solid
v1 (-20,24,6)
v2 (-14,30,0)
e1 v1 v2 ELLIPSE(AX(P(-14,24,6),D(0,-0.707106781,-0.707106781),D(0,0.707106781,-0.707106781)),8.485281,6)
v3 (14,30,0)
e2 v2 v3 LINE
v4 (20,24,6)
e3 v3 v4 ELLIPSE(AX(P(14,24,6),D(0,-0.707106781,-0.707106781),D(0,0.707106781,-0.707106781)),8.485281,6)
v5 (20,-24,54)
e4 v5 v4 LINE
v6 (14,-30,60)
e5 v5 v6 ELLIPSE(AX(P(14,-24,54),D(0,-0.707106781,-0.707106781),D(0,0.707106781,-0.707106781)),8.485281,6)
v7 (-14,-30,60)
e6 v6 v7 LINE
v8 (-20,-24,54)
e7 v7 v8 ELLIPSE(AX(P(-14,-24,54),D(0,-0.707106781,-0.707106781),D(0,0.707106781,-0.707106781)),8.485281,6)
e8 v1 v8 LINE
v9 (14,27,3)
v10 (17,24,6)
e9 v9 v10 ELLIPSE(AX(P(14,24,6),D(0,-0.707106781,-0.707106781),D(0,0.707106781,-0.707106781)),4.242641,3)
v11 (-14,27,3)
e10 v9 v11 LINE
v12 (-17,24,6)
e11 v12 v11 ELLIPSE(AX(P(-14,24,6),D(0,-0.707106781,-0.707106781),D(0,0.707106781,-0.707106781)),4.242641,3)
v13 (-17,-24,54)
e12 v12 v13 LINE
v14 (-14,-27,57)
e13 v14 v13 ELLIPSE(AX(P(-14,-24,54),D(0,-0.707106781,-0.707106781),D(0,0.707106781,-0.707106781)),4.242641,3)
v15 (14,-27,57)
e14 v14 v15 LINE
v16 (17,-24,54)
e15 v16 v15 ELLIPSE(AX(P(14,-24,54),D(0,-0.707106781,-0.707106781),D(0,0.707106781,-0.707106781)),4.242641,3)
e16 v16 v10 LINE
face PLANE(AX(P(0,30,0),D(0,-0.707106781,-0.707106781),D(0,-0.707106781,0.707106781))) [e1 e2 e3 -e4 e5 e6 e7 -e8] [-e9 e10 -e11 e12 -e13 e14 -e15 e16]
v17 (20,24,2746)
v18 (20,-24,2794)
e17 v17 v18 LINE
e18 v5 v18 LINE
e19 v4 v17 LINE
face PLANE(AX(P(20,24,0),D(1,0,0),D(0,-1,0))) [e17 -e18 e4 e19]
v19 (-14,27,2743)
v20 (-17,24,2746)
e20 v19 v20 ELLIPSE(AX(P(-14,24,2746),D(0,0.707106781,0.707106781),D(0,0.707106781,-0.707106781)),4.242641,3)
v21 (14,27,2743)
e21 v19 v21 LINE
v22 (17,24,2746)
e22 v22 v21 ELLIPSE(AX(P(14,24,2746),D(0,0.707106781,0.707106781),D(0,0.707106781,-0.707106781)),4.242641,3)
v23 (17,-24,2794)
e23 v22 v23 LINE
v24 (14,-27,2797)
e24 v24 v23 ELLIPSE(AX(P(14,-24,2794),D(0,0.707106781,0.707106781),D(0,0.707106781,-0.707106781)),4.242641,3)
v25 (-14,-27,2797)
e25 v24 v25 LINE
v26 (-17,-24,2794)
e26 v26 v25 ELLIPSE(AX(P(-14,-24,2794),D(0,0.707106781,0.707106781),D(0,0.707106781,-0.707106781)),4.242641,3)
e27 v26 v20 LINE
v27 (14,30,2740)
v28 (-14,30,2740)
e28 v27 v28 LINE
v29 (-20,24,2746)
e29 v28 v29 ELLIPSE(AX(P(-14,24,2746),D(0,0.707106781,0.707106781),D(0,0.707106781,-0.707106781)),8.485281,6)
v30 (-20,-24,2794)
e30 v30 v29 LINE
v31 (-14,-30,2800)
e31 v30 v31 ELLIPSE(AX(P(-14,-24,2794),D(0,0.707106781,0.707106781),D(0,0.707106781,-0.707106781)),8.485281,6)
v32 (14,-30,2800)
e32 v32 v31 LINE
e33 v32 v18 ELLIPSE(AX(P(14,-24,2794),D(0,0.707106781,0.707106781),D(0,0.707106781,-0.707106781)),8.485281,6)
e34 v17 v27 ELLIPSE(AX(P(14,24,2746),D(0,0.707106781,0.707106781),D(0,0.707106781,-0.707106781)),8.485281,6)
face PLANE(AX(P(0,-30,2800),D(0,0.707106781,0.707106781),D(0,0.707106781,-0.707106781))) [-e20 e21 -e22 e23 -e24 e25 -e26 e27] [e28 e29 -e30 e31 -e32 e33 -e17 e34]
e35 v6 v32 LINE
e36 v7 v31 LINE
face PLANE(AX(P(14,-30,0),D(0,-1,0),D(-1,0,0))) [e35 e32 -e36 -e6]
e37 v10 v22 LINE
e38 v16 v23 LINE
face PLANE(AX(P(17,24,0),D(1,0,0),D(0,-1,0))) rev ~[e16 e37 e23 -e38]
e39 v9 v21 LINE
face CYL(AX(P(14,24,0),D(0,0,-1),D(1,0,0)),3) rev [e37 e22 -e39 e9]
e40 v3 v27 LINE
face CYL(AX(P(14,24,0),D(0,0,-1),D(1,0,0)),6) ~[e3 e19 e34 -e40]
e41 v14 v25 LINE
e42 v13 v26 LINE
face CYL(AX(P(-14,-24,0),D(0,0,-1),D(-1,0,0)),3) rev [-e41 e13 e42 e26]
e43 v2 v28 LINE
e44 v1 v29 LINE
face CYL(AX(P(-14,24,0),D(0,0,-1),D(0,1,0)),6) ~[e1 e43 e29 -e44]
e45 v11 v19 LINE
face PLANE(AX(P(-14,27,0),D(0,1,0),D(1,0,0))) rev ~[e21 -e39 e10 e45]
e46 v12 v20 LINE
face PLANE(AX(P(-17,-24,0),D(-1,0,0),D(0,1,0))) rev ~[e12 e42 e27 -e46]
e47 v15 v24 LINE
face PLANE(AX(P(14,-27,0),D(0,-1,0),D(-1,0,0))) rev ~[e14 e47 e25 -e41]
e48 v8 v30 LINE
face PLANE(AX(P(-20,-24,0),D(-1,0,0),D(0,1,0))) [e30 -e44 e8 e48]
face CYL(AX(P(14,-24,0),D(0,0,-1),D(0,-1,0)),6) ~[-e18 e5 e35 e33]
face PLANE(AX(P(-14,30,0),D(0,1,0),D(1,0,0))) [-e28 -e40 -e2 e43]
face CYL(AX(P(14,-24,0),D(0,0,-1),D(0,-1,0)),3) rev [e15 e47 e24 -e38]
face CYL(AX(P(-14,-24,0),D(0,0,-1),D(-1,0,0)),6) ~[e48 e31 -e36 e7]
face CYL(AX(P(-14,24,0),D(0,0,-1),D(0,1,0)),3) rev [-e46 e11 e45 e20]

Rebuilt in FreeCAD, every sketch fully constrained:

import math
import FreeCAD as App
import Part
import Sketcher
from FreeCAD import Vector
Q = App.Units.Quantity

doc = App.newDocument("Part")
body = doc.addObject("PartDesign::Body", "Body")

# Sketch on XY plane
sketch1 = doc.addObject("Sketcher::SketchObject", "Sketch")
body.addObject(sketch1)
sketch1.AttachmentSupport = (doc.XY_Plane, [""])
sketch1.MapMode = "FlatFace"
sketch1.addGeometry(Part.LineSegment(Vector(-20, 24, 0), Vector(-20, -24, 0)), False)
sketch1.addGeometry(Part.ArcOfCircle(Part.Circle(Vector(-14, -24, 0), Vector(0, 0, 1), 6), math.radians(180), math.radians(270)), False)
sketch1.addGeometry(Part.LineSegment(Vector(-14, -30, 0), Vector(14, -30, 0)), False)
sketch1.addGeometry(Part.ArcOfCircle(Part.Circle(Vector(14, -24, 0), Vector(0, 0, 1), 6), math.radians(-90), math.radians(0)), False)
sketch1.addGeometry(Part.LineSegment(Vector(20, -24, 0), Vector(20, 24, 0)), False)
sketch1.addGeometry(Part.ArcOfCircle(Part.Circle(Vector(14, 24, 0), Vector(0, 0, 1), 6), math.radians(0), math.radians(90)), False)
sketch1.addGeometry(Part.LineSegment(Vector(14, 30, 0), Vector(-14, 30, 0)), False)
sketch1.addGeometry(Part.ArcOfCircle(Part.Circle(Vector(-14, 24, 0), Vector(0, 0, 1), 6), math.radians(90), math.radians(180)), False)
sketch1.addGeometry(Part.ArcOfCircle(Part.Circle(Vector(-14, 24, 0), Vector(0, 0, 1), 3), math.radians(90), math.radians(180)), False)
sketch1.addGeometry(Part.LineSegment(Vector(-14, 27, 0), Vector(14, 27, 0)), False)
sketch1.addGeometry(Part.ArcOfCircle(Part.Circle(Vector(14, 24, 0), Vector(0, 0, 1), 3), math.radians(0), math.radians(90)), False)
sketch1.addGeometry(Part.LineSegment(Vector(17, 24, 0), Vector(17, -24, 0)), False)
sketch1.addGeometry(Part.ArcOfCircle(Part.Circle(Vector(14, -24, 0), Vector(0, 0, 1), 3), math.radians(-90), math.radians(0)), False)
sketch1.addGeometry(Part.LineSegment(Vector(14, -27, 0), Vector(-14, -27, 0)), False)
sketch1.addGeometry(Part.ArcOfCircle(Part.Circle(Vector(-14, -24, 0), Vector(0, 0, 1), 3), math.radians(180), math.radians(270)), False)
sketch1.addGeometry(Part.LineSegment(Vector(-17, -24, 0), Vector(-17, 24, 0)), False)
sketch1.addConstraint(Sketcher.Constraint("Tangent", 0, 2, 1, 1))
sketch1.addConstraint(Sketcher.Constraint("Tangent", 1, 2, 2, 1))
sketch1.addConstraint(Sketcher.Constraint("Tangent", 2, 2, 3, 1))
sketch1.addConstraint(Sketcher.Constraint("Tangent", 3, 2, 4, 1))
sketch1.addConstraint(Sketcher.Constraint("Tangent", 4, 2, 5, 1))
sketch1.addConstraint(Sketcher.Constraint("Tangent", 5, 2, 6, 1))
sketch1.addConstraint(Sketcher.Constraint("Tangent", 6, 2, 7, 1))
sketch1.addConstraint(Sketcher.Constraint("Tangent", 7, 2, 0, 1))
sketch1.addConstraint(Sketcher.Constraint("Tangent", 8, 1, 9, 1))
sketch1.addConstraint(Sketcher.Constraint("Tangent", 9, 2, 10, 2))
sketch1.addConstraint(Sketcher.Constraint("Tangent", 10, 1, 11, 1))
sketch1.addConstraint(Sketcher.Constraint("Tangent", 11, 2, 12, 2))
sketch1.addConstraint(Sketcher.Constraint("Tangent", 12, 1, 13, 1))
sketch1.addConstraint(Sketcher.Constraint("Tangent", 13, 2, 14, 2))
sketch1.addConstraint(Sketcher.Constraint("Tangent", 14, 1, 15, 1))
sketch1.addConstraint(Sketcher.Constraint("Tangent", 15, 2, 8, 2))
sketch1.addConstraint(Sketcher.Constraint("Vertical", 0))
sketch1.addConstraint(Sketcher.Constraint("Horizontal", 2))
sketch1.addConstraint(Sketcher.Constraint("Vertical", 4))
sketch1.addConstraint(Sketcher.Constraint("Horizontal", 6))
sketch1.addConstraint(Sketcher.Constraint("Horizontal", 9))
sketch1.addConstraint(Sketcher.Constraint("Vertical", 11))
sketch1.addConstraint(Sketcher.Constraint("Horizontal", 13))
sketch1.addConstraint(Sketcher.Constraint("Vertical", 15))
sketch1.addConstraint(Sketcher.Constraint("Coincident", 8, 3, 7, 3))
sketch1.addConstraint(Sketcher.Constraint("Coincident", 10, 3, 5, 3))
sketch1.addConstraint(Sketcher.Constraint("Coincident", 12, 3, 3, 3))
sketch1.addConstraint(Sketcher.Constraint("Equal", 1, 3))
sketch1.addConstraint(Sketcher.Constraint("Equal", 3, 5))
sketch1.addConstraint(Sketcher.Constraint("Equal", 5, 7))
sketch1.addConstraint(Sketcher.Constraint("Equal", 12, 14))
sketch1.addConstraint(Sketcher.Constraint("Symmetric", 1, 3, 5, 3, -1, 1))
sketch1.addConstraint(Sketcher.Constraint("Radius", 1, Q("6 mm")))
sketch1.addConstraint(Sketcher.Constraint("Radius", 8, Q("3 mm")))
sketch1.addConstraint(Sketcher.Constraint("DistanceX", 0, 2, -1, 1, Q("20 mm")))
sketch1.addConstraint(Sketcher.Constraint("DistanceY", 1, 2, -1, 1, Q("30 mm")))
pad1 = doc.addObject("PartDesign::Pad", "Pad")
body.addObject(pad1)
pad1.Profile = sketch1
pad1.Length = 2800

# Sketch on YZ plane
sketch2 = doc.addObject("Sketcher::SketchObject", "Sketch001")
body.addObject(sketch2)
sketch2.AttachmentSupport = (doc.YZ_Plane, [""])
sketch2.MapMode = "FlatFace"
sketch2.addGeometry(Part.LineSegment(Vector(-30, 60, 0), Vector(-30, 0, 0)), False)
sketch2.addGeometry(Part.LineSegment(Vector(-30, 0, 0), Vector(30, 0, 0)), False)
sketch2.addGeometry(Part.LineSegment(Vector(30, 0, 0), Vector(-30, 60, 0)), False)
sketch2.addGeometry(Part.LineSegment(Vector(30, 2800, 0), Vector(-30, 2800, 0)), False)
sketch2.addGeometry(Part.LineSegment(Vector(-30, 2800, 0), Vector(30, 2740, 0)), False)
sketch2.addGeometry(Part.LineSegment(Vector(30, 2740, 0), Vector(30, 2800, 0)), False)
sketch2.addConstraint(Sketcher.Constraint("Coincident", 0, 2, 1, 1))
sketch2.addConstraint(Sketcher.Constraint("Coincident", 1, 2, 2, 1))
sketch2.addConstraint(Sketcher.Constraint("Coincident", 2, 2, 0, 1))
sketch2.addConstraint(Sketcher.Constraint("Coincident", 3, 2, 4, 1))
sketch2.addConstraint(Sketcher.Constraint("Coincident", 4, 2, 5, 1))
sketch2.addConstraint(Sketcher.Constraint("Coincident", 5, 2, 3, 1))
sketch2.addConstraint(Sketcher.Constraint("Vertical", 0))
sketch2.addConstraint(Sketcher.Constraint("Horizontal", 1))
sketch2.addConstraint(Sketcher.Constraint("Horizontal", 3))
sketch2.addConstraint(Sketcher.Constraint("Vertical", 5))
sketch2.addConstraint(Sketcher.Constraint("Symmetric", 0, 2, 1, 2, -1, 1))
sketch2.addConstraint(Sketcher.Constraint("Parallel", 2, 4))
sketch2.addConstraint(Sketcher.Constraint("Vertical", 2, 2, 3, 2))
sketch2.addConstraint(Sketcher.Constraint("Vertical", 1, 2, 4, 2))
sketch2.addConstraint(Sketcher.Constraint("Equal", 3, 0))
sketch2.addConstraint(Sketcher.Constraint("DistanceX", 1, 1, 1, 2, Q("60 mm")))
sketch2.addConstraint(Sketcher.Constraint("DistanceY", -1, 1, 3, 2, Q("2800 mm")))
pocket1 = doc.addObject("PartDesign::Pocket", "Pocket")
body.addObject(pocket1)
pocket1.Profile = sketch2
pocket1.Type = "ThroughAll"
pocket1.Midplane = True

doc.recompute()
